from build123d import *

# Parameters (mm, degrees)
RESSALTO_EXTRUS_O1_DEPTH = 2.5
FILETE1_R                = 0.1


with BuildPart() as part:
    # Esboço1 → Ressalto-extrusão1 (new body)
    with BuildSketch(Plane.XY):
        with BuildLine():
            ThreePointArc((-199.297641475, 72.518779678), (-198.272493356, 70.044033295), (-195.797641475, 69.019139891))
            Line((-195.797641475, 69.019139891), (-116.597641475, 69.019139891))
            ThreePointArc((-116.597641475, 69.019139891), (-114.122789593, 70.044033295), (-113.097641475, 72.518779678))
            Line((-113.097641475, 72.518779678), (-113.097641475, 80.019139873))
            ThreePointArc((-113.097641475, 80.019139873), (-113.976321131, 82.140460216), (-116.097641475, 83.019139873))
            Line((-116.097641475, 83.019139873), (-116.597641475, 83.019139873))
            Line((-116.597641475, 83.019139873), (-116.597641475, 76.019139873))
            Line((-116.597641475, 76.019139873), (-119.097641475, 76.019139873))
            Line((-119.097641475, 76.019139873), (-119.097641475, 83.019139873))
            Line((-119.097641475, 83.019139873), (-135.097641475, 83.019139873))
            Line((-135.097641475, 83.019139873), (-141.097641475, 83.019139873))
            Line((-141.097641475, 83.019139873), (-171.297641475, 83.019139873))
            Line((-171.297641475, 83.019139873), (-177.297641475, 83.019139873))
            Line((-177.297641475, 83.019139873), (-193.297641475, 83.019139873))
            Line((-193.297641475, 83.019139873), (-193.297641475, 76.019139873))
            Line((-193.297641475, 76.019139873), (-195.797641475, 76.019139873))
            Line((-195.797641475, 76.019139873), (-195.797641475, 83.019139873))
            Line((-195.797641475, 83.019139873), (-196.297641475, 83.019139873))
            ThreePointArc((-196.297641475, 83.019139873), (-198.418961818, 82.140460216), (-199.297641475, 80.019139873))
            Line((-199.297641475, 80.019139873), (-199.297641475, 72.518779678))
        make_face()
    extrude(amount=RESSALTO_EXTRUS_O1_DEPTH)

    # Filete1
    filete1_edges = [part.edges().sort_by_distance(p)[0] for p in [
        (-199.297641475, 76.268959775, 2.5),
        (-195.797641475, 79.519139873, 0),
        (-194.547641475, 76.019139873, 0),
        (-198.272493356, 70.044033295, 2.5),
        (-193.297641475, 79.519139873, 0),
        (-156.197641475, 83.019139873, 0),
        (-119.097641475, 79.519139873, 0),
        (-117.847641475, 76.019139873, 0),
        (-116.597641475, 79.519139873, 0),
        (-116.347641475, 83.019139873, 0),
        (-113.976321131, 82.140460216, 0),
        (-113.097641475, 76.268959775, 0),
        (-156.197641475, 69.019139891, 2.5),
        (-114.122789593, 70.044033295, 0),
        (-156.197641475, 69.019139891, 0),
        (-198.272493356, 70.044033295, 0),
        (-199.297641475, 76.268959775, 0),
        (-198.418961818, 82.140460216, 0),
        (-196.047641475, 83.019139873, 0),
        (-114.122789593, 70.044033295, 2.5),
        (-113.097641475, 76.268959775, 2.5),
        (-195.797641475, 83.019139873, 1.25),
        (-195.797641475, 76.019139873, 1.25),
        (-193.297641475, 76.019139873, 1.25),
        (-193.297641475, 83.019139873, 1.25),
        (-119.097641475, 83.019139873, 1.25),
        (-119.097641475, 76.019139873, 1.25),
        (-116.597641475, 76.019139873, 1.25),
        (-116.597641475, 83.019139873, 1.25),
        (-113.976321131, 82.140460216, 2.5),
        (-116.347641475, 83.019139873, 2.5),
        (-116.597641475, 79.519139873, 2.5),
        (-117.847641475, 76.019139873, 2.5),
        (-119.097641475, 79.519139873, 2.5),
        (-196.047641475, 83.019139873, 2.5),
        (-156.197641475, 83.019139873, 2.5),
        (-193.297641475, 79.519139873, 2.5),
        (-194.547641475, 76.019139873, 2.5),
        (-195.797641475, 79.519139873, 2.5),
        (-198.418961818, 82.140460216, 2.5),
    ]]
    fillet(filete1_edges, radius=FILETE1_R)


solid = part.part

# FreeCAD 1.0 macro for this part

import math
import FreeCAD as App
import Part
import Sketcher
Q = App.Units.Quantity

doc = App.newDocument("Part")
body = doc.addObject("PartDesign::Body", "Body")

# Sketch on XY plane
sketch1 = doc.addObject("Sketcher::SketchObject", "Sketch")
body.addObject(sketch1)
sketch1.AttachmentSupport = (doc.XY_Plane, [""])
sketch1.MapMode = "FlatFace"
sketch1.addGeometry(Part.ArcOfCircle(Part.Circle(App.Vector(-195.8, 72.5, 0), App.Vector(0, 0, 1), 3.5), math.radians(-180), math.radians(-90)), False)
sketch1.addGeometry(Part.LineSegment(App.Vector(-195.8, 69, 0), App.Vector(-116.6, 69, 0)), False)
sketch1.addGeometry(Part.ArcOfCircle(Part.Circle(App.Vector(-116.6, 72.5, 0), App.Vector(0, 0, 1), 3.5), math.radians(-90), math.radians(0)), False)
sketch1.addGeometry(Part.LineSegment(App.Vector(-113.1, 72.5, 0), App.Vector(-113.1, 80, 0)), False)
sketch1.addGeometry(Part.ArcOfCircle(Part.Circle(App.Vector(-116.1, 80, 0), App.Vector(0, 0, 1), 3), math.radians(0), math.radians(90)), False)
sketch1.addGeometry(Part.LineSegment(App.Vector(-116.1, 83, 0), App.Vector(-116.6, 83, 0)), False)
sketch1.addGeometry(Part.LineSegment(App.Vector(-116.6, 83, 0), App.Vector(-116.6, 76, 0)), False)
sketch1.addGeometry(Part.LineSegment(App.Vector(-116.6, 76, 0), App.Vector(-119.1, 76, 0)), False)
sketch1.addGeometry(Part.LineSegment(App.Vector(-119.1, 76, 0), App.Vector(-119.1, 83, 0)), False)
sketch1.addGeometry(Part.LineSegment(App.Vector(-119.1, 83, 0), App.Vector(-193.3, 83, 0)), False)
sketch1.addGeometry(Part.LineSegment(App.Vector(-193.3, 83, 0), App.Vector(-193.3, 76, 0)), False)
sketch1.addGeometry(Part.LineSegment(App.Vector(-193.3, 76, 0), App.Vector(-195.8, 76, 0)), False)
sketch1.addGeometry(Part.LineSegment(App.Vector(-195.8, 76, 0), App.Vector(-195.8, 83, 0)), False)
sketch1.addGeometry(Part.LineSegment(App.Vector(-195.8, 83, 0), App.Vector(-196.3, 83, 0)), False)
sketch1.addGeometry(Part.ArcOfCircle(Part.Circle(App.Vector(-196.3, 80, 0), App.Vector(0, 0, 1), 3), math.radians(90), math.radians(180)), False)
sketch1.addGeometry(Part.LineSegment(App.Vector(-199.3, 80, 0), App.Vector(-199.3, 72.5, 0)), False)
sketch1.addConstraint(Sketcher.Constraint("Coincident", 0, 2, 1, 1))
sketch1.addConstraint(Sketcher.Constraint("Coincident", 1, 2, 2, 1))
sketch1.addConstraint(Sketcher.Constraint("Tangent", 2, 2, 3, 1))
sketch1.addConstraint(Sketcher.Constraint("Tangent", 3, 2, 4, 1))
sketch1.addConstraint(Sketcher.Constraint("Tangent", 4, 2, 5, 1))
sketch1.addConstraint(Sketcher.Constraint("Coincident", 5, 2, 6, 1))
sketch1.addConstraint(Sketcher.Constraint("Coincident", 6, 2, 7, 1))
sketch1.addConstraint(Sketcher.Constraint("Coincident", 7, 2, 8, 1))
sketch1.addConstraint(Sketcher.Constraint("Coincident", 8, 2, 9, 1))
sketch1.addConstraint(Sketcher.Constraint("Coincident", 9, 2, 10, 1))
sketch1.addConstraint(Sketcher.Constraint("Coincident", 10, 2, 11, 1))
sketch1.addConstraint(Sketcher.Constraint("Coincident", 11, 2, 12, 1))
sketch1.addConstraint(Sketcher.Constraint("Coincident", 12, 2, 13, 1))
sketch1.addConstraint(Sketcher.Constraint("Tangent", 13, 2, 14, 1))
sketch1.addConstraint(Sketcher.Constraint("Tangent", 14, 2, 15, 1))
sketch1.addConstraint(Sketcher.Constraint("Tangent", 15, 2, 0, 1))
sketch1.addConstraint(Sketcher.Constraint("Horizontal", 1))
sketch1.addConstraint(Sketcher.Constraint("Vertical", 3))
sketch1.addConstraint(Sketcher.Constraint("Horizontal", 5))
sketch1.addConstraint(Sketcher.Constraint("Vertical", 6))
sketch1.addConstraint(Sketcher.Constraint("Horizontal", 7))
sketch1.addConstraint(Sketcher.Constraint("Vertical", 8))
sketch1.addConstraint(Sketcher.Constraint("Horizontal", 9))
sketch1.addConstraint(Sketcher.Constraint("Vertical", 10))
sketch1.addConstraint(Sketcher.Constraint("Horizontal", 11))
sketch1.addConstraint(Sketcher.Constraint("Vertical", 12))
sketch1.addConstraint(Sketcher.Constraint("Horizontal", 13))
sketch1.addConstraint(Sketcher.Constraint("Vertical", 15))
sketch1.addConstraint(Sketcher.Constraint("Equal", 0, 2))
sketch1.addConstraint(Sketcher.Constraint("Equal", 4, 14))
sketch1.addConstraint(Sketcher.Constraint("Horizontal", 4, 3, 14, 3))
sketch1.addConstraint(Sketcher.Constraint("Horizontal", 5, 2, 8, 2))
sketch1.addConstraint(Sketcher.Constraint("Horizontal", 7, 2, 10, 2))
sketch1.addConstraint(Sketcher.Constraint("Vertical", 1, 2, 5, 2))
sketch1.addConstraint(Sketcher.Constraint("Vertical", 0, 2, 11, 2))
sketch1.addConstraint(Sketcher.Constraint("Equal", 7, 11))
sketch1.addConstraint(Sketcher.Constraint("Equal", 5, 13))
sketch1.addConstraint(Sketcher.Constraint("Radius", 4, Q("3 mm")))
sketch1.addConstraint(Sketcher.Constraint("DistanceY", 6, 2, 6, 1, Q("7 mm")))
sketch1.addConstraint(Sketcher.Constraint("DistanceX", 1, 1, 1, 2, Q("79.2 mm")))
sketch1.addConstraint(Sketcher.Constraint("DistanceX", 5, 2, 5, 1, Q("0.5 mm")))
sketch1.addConstraint(Sketcher.Constraint("DistanceX", 7, 2, 7, 1, Q("2.5 mm")))
sketch1.addConstraint(Sketcher.Constraint("DistanceY", 0, 2, 14, 3, Q("11 mm")))
sketch1.addConstraint(Sketcher.Constraint("Radius", 0, Q("3.49964 mm")))
sketch1.addConstraint(Sketcher.Constraint("DistanceX", 0, 3, -1, 1, Q("195.798002 mm")))
sketch1.addConstraint(Sketcher.Constraint("DistanceY", -1, 1, 0, 3, Q("72.51878 mm")))
pad1 = doc.addObject("PartDesign::Pad", "Pad")
body.addObject(pad1)
pad1.Profile = sketch1
pad1.Length = 2.5
doc.recompute()

fillet = doc.addObject("PartDesign::Fillet", "Fillet")
body.addObject(fillet)
fillet.Base = (pad1, ["Edge1"])
fillet.UseAllEdges = True
fillet.Radius = 0.1

doc.recompute()
